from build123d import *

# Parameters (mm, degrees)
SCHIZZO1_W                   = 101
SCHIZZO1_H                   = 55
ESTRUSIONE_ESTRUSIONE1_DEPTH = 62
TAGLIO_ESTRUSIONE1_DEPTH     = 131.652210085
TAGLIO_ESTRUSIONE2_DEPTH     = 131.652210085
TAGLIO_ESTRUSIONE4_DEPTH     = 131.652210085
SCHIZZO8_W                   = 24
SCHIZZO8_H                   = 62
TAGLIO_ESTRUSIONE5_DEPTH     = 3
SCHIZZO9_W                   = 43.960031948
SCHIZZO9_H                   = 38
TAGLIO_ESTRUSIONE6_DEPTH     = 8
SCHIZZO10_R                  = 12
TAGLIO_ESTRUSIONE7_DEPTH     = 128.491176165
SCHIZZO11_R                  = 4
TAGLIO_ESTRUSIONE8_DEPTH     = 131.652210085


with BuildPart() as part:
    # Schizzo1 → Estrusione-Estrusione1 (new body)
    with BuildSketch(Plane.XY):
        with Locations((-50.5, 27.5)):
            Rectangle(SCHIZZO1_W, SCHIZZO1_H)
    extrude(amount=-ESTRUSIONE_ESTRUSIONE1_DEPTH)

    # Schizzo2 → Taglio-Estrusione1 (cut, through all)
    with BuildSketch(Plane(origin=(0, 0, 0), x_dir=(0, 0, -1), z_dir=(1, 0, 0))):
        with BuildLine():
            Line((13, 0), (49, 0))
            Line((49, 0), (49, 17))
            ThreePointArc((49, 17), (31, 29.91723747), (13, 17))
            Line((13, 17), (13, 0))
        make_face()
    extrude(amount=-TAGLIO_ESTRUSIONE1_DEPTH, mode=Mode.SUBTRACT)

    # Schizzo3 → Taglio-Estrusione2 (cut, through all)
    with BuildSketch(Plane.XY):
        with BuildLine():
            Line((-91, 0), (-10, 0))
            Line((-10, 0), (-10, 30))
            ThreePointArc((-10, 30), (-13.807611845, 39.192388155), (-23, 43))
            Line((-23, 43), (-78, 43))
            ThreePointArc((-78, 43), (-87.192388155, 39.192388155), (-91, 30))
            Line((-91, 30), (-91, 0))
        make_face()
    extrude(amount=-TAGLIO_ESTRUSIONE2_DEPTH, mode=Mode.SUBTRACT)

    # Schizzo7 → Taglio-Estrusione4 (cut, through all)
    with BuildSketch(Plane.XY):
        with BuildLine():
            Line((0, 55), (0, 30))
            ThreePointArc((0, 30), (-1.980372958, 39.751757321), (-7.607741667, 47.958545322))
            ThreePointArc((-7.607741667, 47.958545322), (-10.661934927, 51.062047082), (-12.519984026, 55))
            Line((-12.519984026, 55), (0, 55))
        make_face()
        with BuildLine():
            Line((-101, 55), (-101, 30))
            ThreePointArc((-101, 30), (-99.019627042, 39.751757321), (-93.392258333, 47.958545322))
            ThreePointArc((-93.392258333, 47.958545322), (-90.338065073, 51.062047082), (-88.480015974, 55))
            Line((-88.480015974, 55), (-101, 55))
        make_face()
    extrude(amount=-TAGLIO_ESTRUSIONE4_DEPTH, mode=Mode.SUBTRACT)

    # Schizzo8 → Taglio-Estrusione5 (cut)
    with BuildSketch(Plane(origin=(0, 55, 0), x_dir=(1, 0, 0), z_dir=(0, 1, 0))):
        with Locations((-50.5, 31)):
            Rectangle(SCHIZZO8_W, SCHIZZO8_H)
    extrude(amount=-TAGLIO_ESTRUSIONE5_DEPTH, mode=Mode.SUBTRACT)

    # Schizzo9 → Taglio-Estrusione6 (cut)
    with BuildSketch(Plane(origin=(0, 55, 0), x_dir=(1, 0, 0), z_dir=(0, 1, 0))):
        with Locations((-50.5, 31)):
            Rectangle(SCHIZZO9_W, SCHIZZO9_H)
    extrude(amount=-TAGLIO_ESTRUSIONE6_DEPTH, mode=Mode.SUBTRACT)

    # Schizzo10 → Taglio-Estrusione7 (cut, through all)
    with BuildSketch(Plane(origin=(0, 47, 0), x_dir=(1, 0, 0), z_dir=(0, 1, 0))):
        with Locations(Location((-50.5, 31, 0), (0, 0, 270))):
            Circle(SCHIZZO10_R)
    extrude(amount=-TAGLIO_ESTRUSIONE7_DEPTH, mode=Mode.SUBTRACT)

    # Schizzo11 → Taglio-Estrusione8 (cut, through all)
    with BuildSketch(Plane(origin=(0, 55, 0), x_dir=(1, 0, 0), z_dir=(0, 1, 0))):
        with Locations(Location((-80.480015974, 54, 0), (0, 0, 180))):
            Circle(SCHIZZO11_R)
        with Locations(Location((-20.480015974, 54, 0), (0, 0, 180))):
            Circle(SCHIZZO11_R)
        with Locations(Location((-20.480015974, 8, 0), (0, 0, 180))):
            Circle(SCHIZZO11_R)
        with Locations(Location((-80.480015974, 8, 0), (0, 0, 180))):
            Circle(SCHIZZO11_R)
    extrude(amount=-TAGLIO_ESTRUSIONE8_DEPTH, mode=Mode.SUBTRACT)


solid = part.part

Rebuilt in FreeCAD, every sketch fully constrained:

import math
import FreeCAD as App
import Part
import Sketcher
Q = App.Units.Quantity

doc = App.newDocument("Part")
body = doc.addObject("PartDesign::Body", "Body")

sketch1 = body.newObject("Sketcher::SketchObject", "Sketch")
sketch1.AttachmentSupport = (doc.getObject("XY_Plane"), [""])
sketch1.MapMode = "FlatFace"
sketch1.addGeometry([
    Part.LineSegment(App.Vector(-101, 55, 0), App.Vector(-101, 0, 0)),
    Part.LineSegment(App.Vector(-101, 0, 0), App.Vector(0, 0, 0)),
    Part.LineSegment(App.Vector(0, 0, 0), App.Vector(0, 55, 0)),
    Part.LineSegment(App.Vector(0, 55, 0), App.Vector(-101, 55, 0)),
], False)
sketch1.addConstraint([
    Sketcher.Constraint("Coincident", 0, 2, 1, 1),
    Sketcher.Constraint("Coincident", 1, 2, 2, 1),
    Sketcher.Constraint("Coincident", 2, 2, 3, 1),
    Sketcher.Constraint("Coincident", 3, 2, 0, 1),
    Sketcher.Constraint("Vertical", 0),
    Sketcher.Constraint("Horizontal", 1),
    Sketcher.Constraint("Vertical", 2),
    Sketcher.Constraint("Horizontal", 3),
    Sketcher.Constraint("Coincident", 1, 2, -1, 1),
    Sketcher.Constraint("DistanceX", 1, 1, 1, 2, Q("101 mm")),
    Sketcher.Constraint("DistanceY", 0, 2, 0, 1, Q("55 mm")),
])
pad1 = body.newObject("PartDesign::Pad", "Pad")
pad1.Profile = sketch1
pad1.Length = 62
pad1.Reversed = True

sketch2 = body.newObject("Sketcher::SketchObject", "Sketch001")
sketch2.AttachmentSupport = (doc.getObject("YZ_Plane"), [""])
sketch2.MapMode = "FlatFace"
sketch2.addGeometry([
    Part.LineSegment(App.Vector(0, -13, 0), App.Vector(0, -49, 0)),
    Part.LineSegment(App.Vector(0, -49, 0), App.Vector(17, -49, 0)),
    Part.ArcOfCircle(Part.Circle(App.Vector(10.917237, -31, 0), App.Vector(0, 0, 1), 19), math.radians(-71.328282), math.radians(71.328282)),
    Part.LineSegment(App.Vector(17, -13, 0), App.Vector(0, -13, 0)),
], False)
sketch2.addConstraint([
    Sketcher.Constraint("Coincident", 0, 2, 1, 1),
    Sketcher.Constraint("Coincident", 1, 2, 2, 1),
    Sketcher.Constraint("Coincident", 2, 2, 3, 1),
    Sketcher.Constraint("Coincident", 3, 2, 0, 1),
    Sketcher.Constraint("Vertical", 0),
    Sketcher.Constraint("Horizontal", 1),
    Sketcher.Constraint("Horizontal", 3),
    Sketcher.Constraint("PointOnObject", 0, 2, -2),
    Sketcher.Constraint("Vertical", 1, 2, 2, 2),
    Sketcher.Constraint("Radius", 2, Q("19 mm")),
    Sketcher.Constraint("DistanceX", 1, 1, 1, 2, Q("17 mm")),
    Sketcher.Constraint("DistanceY", 0, 2, 0, 1, Q("36 mm")),
    Sketcher.Constraint("DistanceY", 2, 3, -1, 1, Q("31 mm")),
])
pocket1 = body.newObject("PartDesign::Pocket", "Pocket")
pocket1.Profile = sketch2
pocket1.Type = "ThroughAll"

sketch3 = body.newObject("Sketcher::SketchObject", "Sketch002")
sketch3.AttachmentSupport = (doc.getObject("XY_Plane"), [""])
sketch3.MapMode = "FlatFace"
sketch3.addGeometry([
    Part.LineSegment(App.Vector(-91, 0, 0), App.Vector(-10, 0, 0)),
    Part.LineSegment(App.Vector(-10, 0, 0), App.Vector(-10, 30, 0)),
    Part.ArcOfCircle(Part.Circle(App.Vector(-23, 30, 0), App.Vector(0, 0, 1), 13), math.radians(0), math.radians(90)),
    Part.LineSegment(App.Vector(-23, 43, 0), App.Vector(-78, 43, 0)),
    Part.ArcOfCircle(Part.Circle(App.Vector(-78, 30, 0), App.Vector(0, 0, 1), 13), math.radians(90), math.radians(180)),
    Part.LineSegment(App.Vector(-91, 30, 0), App.Vector(-91, 0, 0)),
], False)
sketch3.addConstraint([
    Sketcher.Constraint("Coincident", 0, 2, 1, 1),
    Sketcher.Constraint("Tangent", 1, 2, 2, 1),
    Sketcher.Constraint("Tangent", 2, 2, 3, 1),
    Sketcher.Constraint("Tangent", 3, 2, 4, 1),
    Sketcher.Constraint("Tangent", 4, 2, 5, 1),
    Sketcher.Constraint("Coincident", 5, 2, 0, 1),
    Sketcher.Constraint("Horizontal", 0),
    Sketcher.Constraint("Vertical", 1),
    Sketcher.Constraint("Horizontal", 3),
    Sketcher.Constraint("Vertical", 5),
    Sketcher.Constraint("Equal", 2, 4),
    Sketcher.Constraint("PointOnObject", 0, 2, -1),
    Sketcher.Constraint("Radius", 2, Q("13 mm")),
    Sketcher.Constraint("DistanceX", 0, 1, 0, 2, Q("81 mm")),
    Sketcher.Constraint("DistanceY", 1, 1, 1, 2, Q("30 mm")),
    Sketcher.Constraint("DistanceX", 2, 3, -1, 1, Q("23 mm")),
])
pocket2 = body.newObject("PartDesign::Pocket", "Pocket001")
pocket2.Profile = sketch3
pocket2.Type = "ThroughAll"

sketch4 = body.newObject("Sketcher::SketchObject", "Sketch003")
sketch4.AttachmentSupport = (doc.getObject("XY_Plane"), [""])
sketch4.MapMode = "FlatFace"
sketch4.addGeometry([
    Part.LineSegment(App.Vector(0, 30, 0), App.Vector(0, 55, 0)),
    Part.LineSegment(App.Vector(0, 55, 0), App.Vector(-12.519984, 55, 0)),
    Part.ArcOfCircle(Part.Circle(App.Vector(0, 58.5, 0), App.Vector(0, 0, 1), 13), math.radians(-164.381502), math.radians(-125.81789)),
    Part.ArcOfCircle(Part.Circle(App.Vector(-25, 30, 0), App.Vector(0, 0, 1), 25), math.radians(0), math.radians(45.917747)),
    Part.LineSegment(App.Vector(-101, 55, 0), App.Vector(-101, 30, 0)),
    Part.ArcOfCircle(Part.Circle(App.Vector(-76, 30, 0), App.Vector(0, 0, 1), 25), math.radians(134.082253), math.radians(180)),
    Part.ArcOfCircle(Part.Circle(App.Vector(-101, 58.5, 0), App.Vector(0, 0, 1), 13), math.radians(-54.18211), math.radians(-15.618498)),
    Part.LineSegment(App.Vector(-88.480016, 55, 0), App.Vector(-101, 55, 0)),
], False)
sketch4.addConstraint([
    Sketcher.Constraint("Coincident", 0, 2, 1, 1),
    Sketcher.Constraint("Coincident", 1, 2, 2, 1),
    Sketcher.Constraint("Coincident", 2, 2, 3, 2),
    Sketcher.Constraint("Tangent", 3, 1, 0, 1),
    Sketcher.Constraint("Tangent", 4, 2, 5, 2),
    Sketcher.Constraint("Coincident", 5, 1, 6, 1),
    Sketcher.Constraint("Coincident", 6, 2, 7, 1),
    Sketcher.Constraint("Coincident", 7, 2, 4, 1),
    Sketcher.Constraint("Vertical", 0),
    Sketcher.Constraint("Horizontal", 1),
    Sketcher.Constraint("Vertical", 4),
    Sketcher.Constraint("Horizontal", 7),
    Sketcher.Constraint("Equal", 3, 5),
    Sketcher.Constraint("Equal", 2, 6),
    Sketcher.Constraint("PointOnObject", 2, 3, -2),
    Sketcher.Constraint("PointOnObject", 0, 2, -2),
    Sketcher.Constraint("Horizontal", 3, 3, 5, 3),
    Sketcher.Constraint("Horizontal", 2, 3, 6, 3),
    Sketcher.Constraint("Horizontal", 2, 2, 5, 1),
    Sketcher.Constraint("Horizontal", 1, 2, 6, 2),
    Sketcher.Constraint("Radius", 2, Q("13 mm")),
    Sketcher.Constraint("Radius", 3, Q("25 mm")),
    Sketcher.Constraint("DistanceY", 0, 1, 0, 2, Q("25 mm")),
    Sketcher.Constraint("DistanceY", -1, 1, 3, 3, Q("30 mm")),
    Sketcher.Constraint("DistanceX", 5, 3, -1, 1, Q("76 mm")),
    Sketcher.Constraint("DistanceY", -1, 1, 2, 3, Q("58.5 mm")),
])
pocket3 = body.newObject("PartDesign::Pocket", "Pocket002")
pocket3.Profile = sketch4
pocket3.Type = "ThroughAll"

sketch5 = body.newObject("Sketcher::SketchObject", "Sketch004")
sketch5.AttachmentSupport = (doc.getObject("XZ_Plane"), [""])
sketch5.MapMode = "FlatFace"
sketch5.AttachmentOffset = App.Placement(App.Vector(0, 0, -55), App.Rotation())
sketch5.addGeometry([
    Part.LineSegment(App.Vector(-62.5, -62, 0), App.Vector(-62.5, 0, 0)),
    Part.LineSegment(App.Vector(-62.5, 0, 0), App.Vector(-38.5, 0, 0)),
    Part.LineSegment(App.Vector(-38.5, 0, 0), App.Vector(-38.5, -62, 0)),
    Part.LineSegment(App.Vector(-38.5, -62, 0), App.Vector(-62.5, -62, 0)),
], False)
sketch5.addConstraint([
    Sketcher.Constraint("Coincident", 0, 2, 1, 1),
    Sketcher.Constraint("Coincident", 1, 2, 2, 1),
    Sketcher.Constraint("Coincident", 2, 2, 3, 1),
    Sketcher.Constraint("Coincident", 3, 2, 0, 1),
    Sketcher.Constraint("Vertical", 0),
    Sketcher.Constraint("Horizontal", 1),
    Sketcher.Constraint("Vertical", 2),
    Sketcher.Constraint("Horizontal", 3),
    Sketcher.Constraint("PointOnObject", 0, 2, -1),
    Sketcher.Constraint("DistanceX", 1, 1, 1, 2, Q("24 mm")),
    Sketcher.Constraint("DistanceY", 0, 1, 0, 2, Q("62 mm")),
    Sketcher.Constraint("DistanceX", 0, 2, -1, 1, Q("62.5 mm")),
])
pocket4 = body.newObject("PartDesign::Pocket", "Pocket003")
pocket4.Profile = sketch5
pocket4.Length = 3
pocket4.Reversed = True

sketch6 = body.newObject("Sketcher::SketchObject", "Sketch005")
sketch6.AttachmentSupport = (doc.getObject("XZ_Plane"), [""])
sketch6.MapMode = "FlatFace"
sketch6.AttachmentOffset = App.Placement(App.Vector(0, 0, -55), App.Rotation())
sketch6.addGeometry([
    Part.LineSegment(App.Vector(-72.480016, -50, 0), App.Vector(-72.480016, -12, 0)),
    Part.LineSegment(App.Vector(-72.480016, -12, 0), App.Vector(-28.519984, -12, 0)),
    Part.LineSegment(App.Vector(-28.519984, -12, 0), App.Vector(-28.519984, -50, 0)),
    Part.LineSegment(App.Vector(-28.519984, -50, 0), App.Vector(-72.480016, -50, 0)),
], False)
sketch6.addConstraint([
    Sketcher.Constraint("Coincident", 0, 2, 1, 1),
    Sketcher.Constraint("Coincident", 1, 2, 2, 1),
    Sketcher.Constraint("Coincident", 2, 2, 3, 1),
    Sketcher.Constraint("Coincident", 3, 2, 0, 1),
    Sketcher.Constraint("Vertical", 0),
    Sketcher.Constraint("Horizontal", 1),
    Sketcher.Constraint("Vertical", 2),
    Sketcher.Constraint("Horizontal", 3),
    Sketcher.Constraint("DistanceY", 0, 1, 0, 2, Q("38 mm")),
    Sketcher.Constraint("DistanceY", 0, 2, -1, 1, Q("12 mm")),
    Sketcher.Constraint("DistanceX", 1, 1, 1, 2, Q("43.960032 mm")),
    Sketcher.Constraint("DistanceX", 0, 2, -1, 1, Q("72.480016 mm")),
])
pocket5 = body.newObject("PartDesign::Pocket", "Pocket004")
pocket5.Profile = sketch6
pocket5.Length = 8
pocket5.Reversed = True

sketch7 = body.newObject("Sketcher::SketchObject", "Sketch006")
sketch7.AttachmentSupport = (doc.getObject("XZ_Plane"), [""])
sketch7.MapMode = "FlatFace"
sketch7.AttachmentOffset = App.Placement(App.Vector(0, 0, -47), App.Rotation())
sketch7.addGeometry(Part.Circle(App.Vector(-50.5, -31, 0), App.Vector(0, 0, 1), 12), False)
sketch7.addConstraint([
    Sketcher.Constraint("Diameter", 0, Q("24 mm")),
    Sketcher.Constraint("DistanceY", 0, 3, -1, 1, Q("31 mm")),
    Sketcher.Constraint("DistanceX", 0, 3, -1, 1, Q("50.5 mm")),
])
pocket6 = body.newObject("PartDesign::Pocket", "Pocket005")
pocket6.Profile = sketch7
pocket6.Type = "ThroughAll"
pocket6.Reversed = True

sketch8 = body.newObject("Sketcher::SketchObject", "Sketch007")
sketch8.AttachmentSupport = (doc.getObject("XZ_Plane"), [""])
sketch8.MapMode = "FlatFace"
sketch8.AttachmentOffset = App.Placement(App.Vector(0, 0, -55), App.Rotation())
sketch8.addGeometry([
    Part.Circle(App.Vector(-80.480016, -54, 0), App.Vector(0, 0, 1), 4),
    Part.Circle(App.Vector(-20.480016, -54, 0), App.Vector(0, 0, 1), 4),
    Part.Circle(App.Vector(-20.480016, -8, 0), App.Vector(0, 0, 1), 4),
    Part.Circle(App.Vector(-80.480016, -8, 0), App.Vector(0, 0, 1), 4),
], False)
sketch8.addConstraint([
    Sketcher.Constraint("Equal", 0, 1),
    Sketcher.Constraint("Equal", 1, 2),
    Sketcher.Constraint("Equal", 2, 3),
    Sketcher.Constraint("Horizontal", 0, 3, 1, 3),
    Sketcher.Constraint("Horizontal", 2, 3, 3, 3),
    Sketcher.Constraint("Vertical", 1, 3, 2, 3),
    Sketcher.Constraint("Vertical", 0, 3, 3, 3),
    Sketcher.Constraint("Diameter", 0, Q("8 mm")),
    Sketcher.Constraint("DistanceY", 0, 3, -1, 1, Q("54 mm")),
    Sketcher.Constraint("DistanceY", 2, 3, -1, 1, Q("8 mm")),
    Sketcher.Constraint("DistanceX", 0, 3, 1, 3, Q("60 mm")),
    Sketcher.Constraint("DistanceX", 0, 3, -1, 1, Q("80.480016 mm")),
])
pocket7 = body.newObject("PartDesign::Pocket", "Pocket006")
pocket7.Profile = sketch8
pocket7.Type = "ThroughAll"
pocket7.Reversed = True

doc.recompute()
